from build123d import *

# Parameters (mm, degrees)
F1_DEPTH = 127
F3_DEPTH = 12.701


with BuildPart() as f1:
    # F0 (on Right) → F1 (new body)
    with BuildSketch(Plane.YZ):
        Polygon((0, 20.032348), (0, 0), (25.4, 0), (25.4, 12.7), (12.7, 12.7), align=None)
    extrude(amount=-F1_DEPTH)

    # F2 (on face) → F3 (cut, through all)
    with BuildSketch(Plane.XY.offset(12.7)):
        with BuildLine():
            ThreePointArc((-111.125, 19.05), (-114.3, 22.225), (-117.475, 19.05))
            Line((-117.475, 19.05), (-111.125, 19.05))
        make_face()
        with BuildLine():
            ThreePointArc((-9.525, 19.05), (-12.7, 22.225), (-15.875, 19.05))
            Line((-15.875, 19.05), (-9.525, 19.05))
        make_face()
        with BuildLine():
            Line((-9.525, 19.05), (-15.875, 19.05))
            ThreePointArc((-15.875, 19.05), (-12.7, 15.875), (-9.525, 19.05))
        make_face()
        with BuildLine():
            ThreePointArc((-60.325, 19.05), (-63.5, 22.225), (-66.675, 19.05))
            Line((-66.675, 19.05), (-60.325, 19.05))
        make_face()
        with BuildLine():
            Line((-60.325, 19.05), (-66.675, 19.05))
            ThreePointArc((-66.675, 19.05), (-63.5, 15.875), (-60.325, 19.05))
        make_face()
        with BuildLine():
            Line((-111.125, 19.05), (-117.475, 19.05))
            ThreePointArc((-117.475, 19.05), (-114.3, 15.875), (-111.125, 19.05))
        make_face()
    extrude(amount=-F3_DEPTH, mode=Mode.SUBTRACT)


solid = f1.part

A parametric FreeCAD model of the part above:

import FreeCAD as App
import Part
import Sketcher
from FreeCAD import Vector
Q = App.Units.Quantity

doc = App.newDocument("Part")
params = doc.addObject("Spreadsheet::Sheet", "Params")
for row, (alias, value) in enumerate([
    ("sketch1_width", "1 in"),
    ("sketch1_width2", "0.5 in"),
    ("pad1_length", "5 in"),
    ("sketch2_diameter", "0.25 in"),
], start=1):
    params.set(f"A{row}", alias)
    params.set(f"B{row}", "=" + value)
    params.setAlias(f"B{row}", alias)

body = doc.addObject("PartDesign::Body", "Body")

sketch1 = doc.addObject("Sketcher::SketchObject", "Sketch")
body.addObject(sketch1)
sketch1.AttachmentSupport = (doc.YZ_Plane, [""])
sketch1.MapMode = "FlatFace"
sketch1.addGeometry([
    Part.LineSegment(Vector(0, 20, 0), Vector(0, 0, 0)),
    Part.LineSegment(Vector(0, 0, 0), Vector(25, 0, 0)),
    Part.LineSegment(Vector(25, 0, 0), Vector(25, 13, 0)),
    Part.LineSegment(Vector(25, 13, 0), Vector(13, 13, 0)),
    Part.LineSegment(Vector(13, 13, 0), Vector(0, 20, 0)),
], False)
sketch1.addConstraint([
    Sketcher.Constraint("Coincident", 0, 2, 1, 1),
    Sketcher.Constraint("Coincident", 1, 2, 2, 1),
    Sketcher.Constraint("Coincident", 2, 2, 3, 1),
    Sketcher.Constraint("Coincident", 3, 2, 4, 1),
    Sketcher.Constraint("Coincident", 4, 2, 0, 1),
    Sketcher.Constraint("Vertical", 0),
    Sketcher.Constraint("Horizontal", 1),
    Sketcher.Constraint("Vertical", 2),
    Sketcher.Constraint("Horizontal", 3),
    Sketcher.Constraint("Coincident", 0, 2, -1, 1),
    Sketcher.Constraint("Equal", 3, 2),
    Sketcher.Constraint("DistanceX", 1, 1, 1, 2, Q("1 in")),
    Sketcher.Constraint("DistanceX", 3, 2, 3, 1, Q("0.5 in")),
    Sketcher.Constraint("Angle", 4, Q("150.000001 deg")),
])
sketch1.setExpression("Constraints[11]", "Params.sketch1_width")
sketch1.setExpression("Constraints[12]", "Params.sketch1_width2")
pad1 = doc.addObject("PartDesign::Pad", "Pad")
body.addObject(pad1)
pad1.Profile = sketch1
pad1.setExpression("Length", "Params.pad1_length")
pad1.Reversed = True

sketch2 = doc.addObject("Sketcher::SketchObject", "Sketch001")
body.addObject(sketch2)
sketch2.AttachmentSupport = (doc.XY_Plane, [""])
sketch2.MapMode = "FlatFace"
sketch2.AttachmentOffset = App.Placement(Vector(0, 0, 0.5 * 25.4), App.Rotation())
sketch2.addGeometry([
    Part.Circle(Vector(-114.3, 19.1, 0), Vector(0, 0, 1), 3.2),
    Part.Circle(Vector(-12.7, 19.1, 0), Vector(0, 0, 1), 3.2),
    Part.Circle(Vector(-63.5, 19.1, 0), Vector(0, 0, 1), 3.2),
], False)
sketch2.addConstraint([
    Sketcher.Constraint("Equal", 0, 1),
    Sketcher.Constraint("Equal", 1, 2),
    Sketcher.Constraint("Horizontal", 0, 3, 1, 3),
    Sketcher.Constraint("Horizontal", 1, 3, 2, 3),
    Sketcher.Constraint("Diameter", 0, Q("0.25 in")),
    Sketcher.Constraint("DistanceX", 0, 3, 1, 3, Q("4 in")),
    Sketcher.Constraint("DistanceX", 0, 3, 2, 3, Q("2 in")),
    Sketcher.Constraint("DistanceX", 0, 3, -1, 1, Q("4.5 in")),
    Sketcher.Constraint("DistanceY", -1, 1, 0, 3, Q("0.75 in")),
])
sketch2.setExpression("Constraints[4]", "Params.sketch2_diameter")
pocket1 = doc.addObject("PartDesign::Pocket", "Pocket")
body.addObject(pocket1)
pocket1.Profile = sketch2
pocket1.Type = "ThroughAll"

doc.recompute()
